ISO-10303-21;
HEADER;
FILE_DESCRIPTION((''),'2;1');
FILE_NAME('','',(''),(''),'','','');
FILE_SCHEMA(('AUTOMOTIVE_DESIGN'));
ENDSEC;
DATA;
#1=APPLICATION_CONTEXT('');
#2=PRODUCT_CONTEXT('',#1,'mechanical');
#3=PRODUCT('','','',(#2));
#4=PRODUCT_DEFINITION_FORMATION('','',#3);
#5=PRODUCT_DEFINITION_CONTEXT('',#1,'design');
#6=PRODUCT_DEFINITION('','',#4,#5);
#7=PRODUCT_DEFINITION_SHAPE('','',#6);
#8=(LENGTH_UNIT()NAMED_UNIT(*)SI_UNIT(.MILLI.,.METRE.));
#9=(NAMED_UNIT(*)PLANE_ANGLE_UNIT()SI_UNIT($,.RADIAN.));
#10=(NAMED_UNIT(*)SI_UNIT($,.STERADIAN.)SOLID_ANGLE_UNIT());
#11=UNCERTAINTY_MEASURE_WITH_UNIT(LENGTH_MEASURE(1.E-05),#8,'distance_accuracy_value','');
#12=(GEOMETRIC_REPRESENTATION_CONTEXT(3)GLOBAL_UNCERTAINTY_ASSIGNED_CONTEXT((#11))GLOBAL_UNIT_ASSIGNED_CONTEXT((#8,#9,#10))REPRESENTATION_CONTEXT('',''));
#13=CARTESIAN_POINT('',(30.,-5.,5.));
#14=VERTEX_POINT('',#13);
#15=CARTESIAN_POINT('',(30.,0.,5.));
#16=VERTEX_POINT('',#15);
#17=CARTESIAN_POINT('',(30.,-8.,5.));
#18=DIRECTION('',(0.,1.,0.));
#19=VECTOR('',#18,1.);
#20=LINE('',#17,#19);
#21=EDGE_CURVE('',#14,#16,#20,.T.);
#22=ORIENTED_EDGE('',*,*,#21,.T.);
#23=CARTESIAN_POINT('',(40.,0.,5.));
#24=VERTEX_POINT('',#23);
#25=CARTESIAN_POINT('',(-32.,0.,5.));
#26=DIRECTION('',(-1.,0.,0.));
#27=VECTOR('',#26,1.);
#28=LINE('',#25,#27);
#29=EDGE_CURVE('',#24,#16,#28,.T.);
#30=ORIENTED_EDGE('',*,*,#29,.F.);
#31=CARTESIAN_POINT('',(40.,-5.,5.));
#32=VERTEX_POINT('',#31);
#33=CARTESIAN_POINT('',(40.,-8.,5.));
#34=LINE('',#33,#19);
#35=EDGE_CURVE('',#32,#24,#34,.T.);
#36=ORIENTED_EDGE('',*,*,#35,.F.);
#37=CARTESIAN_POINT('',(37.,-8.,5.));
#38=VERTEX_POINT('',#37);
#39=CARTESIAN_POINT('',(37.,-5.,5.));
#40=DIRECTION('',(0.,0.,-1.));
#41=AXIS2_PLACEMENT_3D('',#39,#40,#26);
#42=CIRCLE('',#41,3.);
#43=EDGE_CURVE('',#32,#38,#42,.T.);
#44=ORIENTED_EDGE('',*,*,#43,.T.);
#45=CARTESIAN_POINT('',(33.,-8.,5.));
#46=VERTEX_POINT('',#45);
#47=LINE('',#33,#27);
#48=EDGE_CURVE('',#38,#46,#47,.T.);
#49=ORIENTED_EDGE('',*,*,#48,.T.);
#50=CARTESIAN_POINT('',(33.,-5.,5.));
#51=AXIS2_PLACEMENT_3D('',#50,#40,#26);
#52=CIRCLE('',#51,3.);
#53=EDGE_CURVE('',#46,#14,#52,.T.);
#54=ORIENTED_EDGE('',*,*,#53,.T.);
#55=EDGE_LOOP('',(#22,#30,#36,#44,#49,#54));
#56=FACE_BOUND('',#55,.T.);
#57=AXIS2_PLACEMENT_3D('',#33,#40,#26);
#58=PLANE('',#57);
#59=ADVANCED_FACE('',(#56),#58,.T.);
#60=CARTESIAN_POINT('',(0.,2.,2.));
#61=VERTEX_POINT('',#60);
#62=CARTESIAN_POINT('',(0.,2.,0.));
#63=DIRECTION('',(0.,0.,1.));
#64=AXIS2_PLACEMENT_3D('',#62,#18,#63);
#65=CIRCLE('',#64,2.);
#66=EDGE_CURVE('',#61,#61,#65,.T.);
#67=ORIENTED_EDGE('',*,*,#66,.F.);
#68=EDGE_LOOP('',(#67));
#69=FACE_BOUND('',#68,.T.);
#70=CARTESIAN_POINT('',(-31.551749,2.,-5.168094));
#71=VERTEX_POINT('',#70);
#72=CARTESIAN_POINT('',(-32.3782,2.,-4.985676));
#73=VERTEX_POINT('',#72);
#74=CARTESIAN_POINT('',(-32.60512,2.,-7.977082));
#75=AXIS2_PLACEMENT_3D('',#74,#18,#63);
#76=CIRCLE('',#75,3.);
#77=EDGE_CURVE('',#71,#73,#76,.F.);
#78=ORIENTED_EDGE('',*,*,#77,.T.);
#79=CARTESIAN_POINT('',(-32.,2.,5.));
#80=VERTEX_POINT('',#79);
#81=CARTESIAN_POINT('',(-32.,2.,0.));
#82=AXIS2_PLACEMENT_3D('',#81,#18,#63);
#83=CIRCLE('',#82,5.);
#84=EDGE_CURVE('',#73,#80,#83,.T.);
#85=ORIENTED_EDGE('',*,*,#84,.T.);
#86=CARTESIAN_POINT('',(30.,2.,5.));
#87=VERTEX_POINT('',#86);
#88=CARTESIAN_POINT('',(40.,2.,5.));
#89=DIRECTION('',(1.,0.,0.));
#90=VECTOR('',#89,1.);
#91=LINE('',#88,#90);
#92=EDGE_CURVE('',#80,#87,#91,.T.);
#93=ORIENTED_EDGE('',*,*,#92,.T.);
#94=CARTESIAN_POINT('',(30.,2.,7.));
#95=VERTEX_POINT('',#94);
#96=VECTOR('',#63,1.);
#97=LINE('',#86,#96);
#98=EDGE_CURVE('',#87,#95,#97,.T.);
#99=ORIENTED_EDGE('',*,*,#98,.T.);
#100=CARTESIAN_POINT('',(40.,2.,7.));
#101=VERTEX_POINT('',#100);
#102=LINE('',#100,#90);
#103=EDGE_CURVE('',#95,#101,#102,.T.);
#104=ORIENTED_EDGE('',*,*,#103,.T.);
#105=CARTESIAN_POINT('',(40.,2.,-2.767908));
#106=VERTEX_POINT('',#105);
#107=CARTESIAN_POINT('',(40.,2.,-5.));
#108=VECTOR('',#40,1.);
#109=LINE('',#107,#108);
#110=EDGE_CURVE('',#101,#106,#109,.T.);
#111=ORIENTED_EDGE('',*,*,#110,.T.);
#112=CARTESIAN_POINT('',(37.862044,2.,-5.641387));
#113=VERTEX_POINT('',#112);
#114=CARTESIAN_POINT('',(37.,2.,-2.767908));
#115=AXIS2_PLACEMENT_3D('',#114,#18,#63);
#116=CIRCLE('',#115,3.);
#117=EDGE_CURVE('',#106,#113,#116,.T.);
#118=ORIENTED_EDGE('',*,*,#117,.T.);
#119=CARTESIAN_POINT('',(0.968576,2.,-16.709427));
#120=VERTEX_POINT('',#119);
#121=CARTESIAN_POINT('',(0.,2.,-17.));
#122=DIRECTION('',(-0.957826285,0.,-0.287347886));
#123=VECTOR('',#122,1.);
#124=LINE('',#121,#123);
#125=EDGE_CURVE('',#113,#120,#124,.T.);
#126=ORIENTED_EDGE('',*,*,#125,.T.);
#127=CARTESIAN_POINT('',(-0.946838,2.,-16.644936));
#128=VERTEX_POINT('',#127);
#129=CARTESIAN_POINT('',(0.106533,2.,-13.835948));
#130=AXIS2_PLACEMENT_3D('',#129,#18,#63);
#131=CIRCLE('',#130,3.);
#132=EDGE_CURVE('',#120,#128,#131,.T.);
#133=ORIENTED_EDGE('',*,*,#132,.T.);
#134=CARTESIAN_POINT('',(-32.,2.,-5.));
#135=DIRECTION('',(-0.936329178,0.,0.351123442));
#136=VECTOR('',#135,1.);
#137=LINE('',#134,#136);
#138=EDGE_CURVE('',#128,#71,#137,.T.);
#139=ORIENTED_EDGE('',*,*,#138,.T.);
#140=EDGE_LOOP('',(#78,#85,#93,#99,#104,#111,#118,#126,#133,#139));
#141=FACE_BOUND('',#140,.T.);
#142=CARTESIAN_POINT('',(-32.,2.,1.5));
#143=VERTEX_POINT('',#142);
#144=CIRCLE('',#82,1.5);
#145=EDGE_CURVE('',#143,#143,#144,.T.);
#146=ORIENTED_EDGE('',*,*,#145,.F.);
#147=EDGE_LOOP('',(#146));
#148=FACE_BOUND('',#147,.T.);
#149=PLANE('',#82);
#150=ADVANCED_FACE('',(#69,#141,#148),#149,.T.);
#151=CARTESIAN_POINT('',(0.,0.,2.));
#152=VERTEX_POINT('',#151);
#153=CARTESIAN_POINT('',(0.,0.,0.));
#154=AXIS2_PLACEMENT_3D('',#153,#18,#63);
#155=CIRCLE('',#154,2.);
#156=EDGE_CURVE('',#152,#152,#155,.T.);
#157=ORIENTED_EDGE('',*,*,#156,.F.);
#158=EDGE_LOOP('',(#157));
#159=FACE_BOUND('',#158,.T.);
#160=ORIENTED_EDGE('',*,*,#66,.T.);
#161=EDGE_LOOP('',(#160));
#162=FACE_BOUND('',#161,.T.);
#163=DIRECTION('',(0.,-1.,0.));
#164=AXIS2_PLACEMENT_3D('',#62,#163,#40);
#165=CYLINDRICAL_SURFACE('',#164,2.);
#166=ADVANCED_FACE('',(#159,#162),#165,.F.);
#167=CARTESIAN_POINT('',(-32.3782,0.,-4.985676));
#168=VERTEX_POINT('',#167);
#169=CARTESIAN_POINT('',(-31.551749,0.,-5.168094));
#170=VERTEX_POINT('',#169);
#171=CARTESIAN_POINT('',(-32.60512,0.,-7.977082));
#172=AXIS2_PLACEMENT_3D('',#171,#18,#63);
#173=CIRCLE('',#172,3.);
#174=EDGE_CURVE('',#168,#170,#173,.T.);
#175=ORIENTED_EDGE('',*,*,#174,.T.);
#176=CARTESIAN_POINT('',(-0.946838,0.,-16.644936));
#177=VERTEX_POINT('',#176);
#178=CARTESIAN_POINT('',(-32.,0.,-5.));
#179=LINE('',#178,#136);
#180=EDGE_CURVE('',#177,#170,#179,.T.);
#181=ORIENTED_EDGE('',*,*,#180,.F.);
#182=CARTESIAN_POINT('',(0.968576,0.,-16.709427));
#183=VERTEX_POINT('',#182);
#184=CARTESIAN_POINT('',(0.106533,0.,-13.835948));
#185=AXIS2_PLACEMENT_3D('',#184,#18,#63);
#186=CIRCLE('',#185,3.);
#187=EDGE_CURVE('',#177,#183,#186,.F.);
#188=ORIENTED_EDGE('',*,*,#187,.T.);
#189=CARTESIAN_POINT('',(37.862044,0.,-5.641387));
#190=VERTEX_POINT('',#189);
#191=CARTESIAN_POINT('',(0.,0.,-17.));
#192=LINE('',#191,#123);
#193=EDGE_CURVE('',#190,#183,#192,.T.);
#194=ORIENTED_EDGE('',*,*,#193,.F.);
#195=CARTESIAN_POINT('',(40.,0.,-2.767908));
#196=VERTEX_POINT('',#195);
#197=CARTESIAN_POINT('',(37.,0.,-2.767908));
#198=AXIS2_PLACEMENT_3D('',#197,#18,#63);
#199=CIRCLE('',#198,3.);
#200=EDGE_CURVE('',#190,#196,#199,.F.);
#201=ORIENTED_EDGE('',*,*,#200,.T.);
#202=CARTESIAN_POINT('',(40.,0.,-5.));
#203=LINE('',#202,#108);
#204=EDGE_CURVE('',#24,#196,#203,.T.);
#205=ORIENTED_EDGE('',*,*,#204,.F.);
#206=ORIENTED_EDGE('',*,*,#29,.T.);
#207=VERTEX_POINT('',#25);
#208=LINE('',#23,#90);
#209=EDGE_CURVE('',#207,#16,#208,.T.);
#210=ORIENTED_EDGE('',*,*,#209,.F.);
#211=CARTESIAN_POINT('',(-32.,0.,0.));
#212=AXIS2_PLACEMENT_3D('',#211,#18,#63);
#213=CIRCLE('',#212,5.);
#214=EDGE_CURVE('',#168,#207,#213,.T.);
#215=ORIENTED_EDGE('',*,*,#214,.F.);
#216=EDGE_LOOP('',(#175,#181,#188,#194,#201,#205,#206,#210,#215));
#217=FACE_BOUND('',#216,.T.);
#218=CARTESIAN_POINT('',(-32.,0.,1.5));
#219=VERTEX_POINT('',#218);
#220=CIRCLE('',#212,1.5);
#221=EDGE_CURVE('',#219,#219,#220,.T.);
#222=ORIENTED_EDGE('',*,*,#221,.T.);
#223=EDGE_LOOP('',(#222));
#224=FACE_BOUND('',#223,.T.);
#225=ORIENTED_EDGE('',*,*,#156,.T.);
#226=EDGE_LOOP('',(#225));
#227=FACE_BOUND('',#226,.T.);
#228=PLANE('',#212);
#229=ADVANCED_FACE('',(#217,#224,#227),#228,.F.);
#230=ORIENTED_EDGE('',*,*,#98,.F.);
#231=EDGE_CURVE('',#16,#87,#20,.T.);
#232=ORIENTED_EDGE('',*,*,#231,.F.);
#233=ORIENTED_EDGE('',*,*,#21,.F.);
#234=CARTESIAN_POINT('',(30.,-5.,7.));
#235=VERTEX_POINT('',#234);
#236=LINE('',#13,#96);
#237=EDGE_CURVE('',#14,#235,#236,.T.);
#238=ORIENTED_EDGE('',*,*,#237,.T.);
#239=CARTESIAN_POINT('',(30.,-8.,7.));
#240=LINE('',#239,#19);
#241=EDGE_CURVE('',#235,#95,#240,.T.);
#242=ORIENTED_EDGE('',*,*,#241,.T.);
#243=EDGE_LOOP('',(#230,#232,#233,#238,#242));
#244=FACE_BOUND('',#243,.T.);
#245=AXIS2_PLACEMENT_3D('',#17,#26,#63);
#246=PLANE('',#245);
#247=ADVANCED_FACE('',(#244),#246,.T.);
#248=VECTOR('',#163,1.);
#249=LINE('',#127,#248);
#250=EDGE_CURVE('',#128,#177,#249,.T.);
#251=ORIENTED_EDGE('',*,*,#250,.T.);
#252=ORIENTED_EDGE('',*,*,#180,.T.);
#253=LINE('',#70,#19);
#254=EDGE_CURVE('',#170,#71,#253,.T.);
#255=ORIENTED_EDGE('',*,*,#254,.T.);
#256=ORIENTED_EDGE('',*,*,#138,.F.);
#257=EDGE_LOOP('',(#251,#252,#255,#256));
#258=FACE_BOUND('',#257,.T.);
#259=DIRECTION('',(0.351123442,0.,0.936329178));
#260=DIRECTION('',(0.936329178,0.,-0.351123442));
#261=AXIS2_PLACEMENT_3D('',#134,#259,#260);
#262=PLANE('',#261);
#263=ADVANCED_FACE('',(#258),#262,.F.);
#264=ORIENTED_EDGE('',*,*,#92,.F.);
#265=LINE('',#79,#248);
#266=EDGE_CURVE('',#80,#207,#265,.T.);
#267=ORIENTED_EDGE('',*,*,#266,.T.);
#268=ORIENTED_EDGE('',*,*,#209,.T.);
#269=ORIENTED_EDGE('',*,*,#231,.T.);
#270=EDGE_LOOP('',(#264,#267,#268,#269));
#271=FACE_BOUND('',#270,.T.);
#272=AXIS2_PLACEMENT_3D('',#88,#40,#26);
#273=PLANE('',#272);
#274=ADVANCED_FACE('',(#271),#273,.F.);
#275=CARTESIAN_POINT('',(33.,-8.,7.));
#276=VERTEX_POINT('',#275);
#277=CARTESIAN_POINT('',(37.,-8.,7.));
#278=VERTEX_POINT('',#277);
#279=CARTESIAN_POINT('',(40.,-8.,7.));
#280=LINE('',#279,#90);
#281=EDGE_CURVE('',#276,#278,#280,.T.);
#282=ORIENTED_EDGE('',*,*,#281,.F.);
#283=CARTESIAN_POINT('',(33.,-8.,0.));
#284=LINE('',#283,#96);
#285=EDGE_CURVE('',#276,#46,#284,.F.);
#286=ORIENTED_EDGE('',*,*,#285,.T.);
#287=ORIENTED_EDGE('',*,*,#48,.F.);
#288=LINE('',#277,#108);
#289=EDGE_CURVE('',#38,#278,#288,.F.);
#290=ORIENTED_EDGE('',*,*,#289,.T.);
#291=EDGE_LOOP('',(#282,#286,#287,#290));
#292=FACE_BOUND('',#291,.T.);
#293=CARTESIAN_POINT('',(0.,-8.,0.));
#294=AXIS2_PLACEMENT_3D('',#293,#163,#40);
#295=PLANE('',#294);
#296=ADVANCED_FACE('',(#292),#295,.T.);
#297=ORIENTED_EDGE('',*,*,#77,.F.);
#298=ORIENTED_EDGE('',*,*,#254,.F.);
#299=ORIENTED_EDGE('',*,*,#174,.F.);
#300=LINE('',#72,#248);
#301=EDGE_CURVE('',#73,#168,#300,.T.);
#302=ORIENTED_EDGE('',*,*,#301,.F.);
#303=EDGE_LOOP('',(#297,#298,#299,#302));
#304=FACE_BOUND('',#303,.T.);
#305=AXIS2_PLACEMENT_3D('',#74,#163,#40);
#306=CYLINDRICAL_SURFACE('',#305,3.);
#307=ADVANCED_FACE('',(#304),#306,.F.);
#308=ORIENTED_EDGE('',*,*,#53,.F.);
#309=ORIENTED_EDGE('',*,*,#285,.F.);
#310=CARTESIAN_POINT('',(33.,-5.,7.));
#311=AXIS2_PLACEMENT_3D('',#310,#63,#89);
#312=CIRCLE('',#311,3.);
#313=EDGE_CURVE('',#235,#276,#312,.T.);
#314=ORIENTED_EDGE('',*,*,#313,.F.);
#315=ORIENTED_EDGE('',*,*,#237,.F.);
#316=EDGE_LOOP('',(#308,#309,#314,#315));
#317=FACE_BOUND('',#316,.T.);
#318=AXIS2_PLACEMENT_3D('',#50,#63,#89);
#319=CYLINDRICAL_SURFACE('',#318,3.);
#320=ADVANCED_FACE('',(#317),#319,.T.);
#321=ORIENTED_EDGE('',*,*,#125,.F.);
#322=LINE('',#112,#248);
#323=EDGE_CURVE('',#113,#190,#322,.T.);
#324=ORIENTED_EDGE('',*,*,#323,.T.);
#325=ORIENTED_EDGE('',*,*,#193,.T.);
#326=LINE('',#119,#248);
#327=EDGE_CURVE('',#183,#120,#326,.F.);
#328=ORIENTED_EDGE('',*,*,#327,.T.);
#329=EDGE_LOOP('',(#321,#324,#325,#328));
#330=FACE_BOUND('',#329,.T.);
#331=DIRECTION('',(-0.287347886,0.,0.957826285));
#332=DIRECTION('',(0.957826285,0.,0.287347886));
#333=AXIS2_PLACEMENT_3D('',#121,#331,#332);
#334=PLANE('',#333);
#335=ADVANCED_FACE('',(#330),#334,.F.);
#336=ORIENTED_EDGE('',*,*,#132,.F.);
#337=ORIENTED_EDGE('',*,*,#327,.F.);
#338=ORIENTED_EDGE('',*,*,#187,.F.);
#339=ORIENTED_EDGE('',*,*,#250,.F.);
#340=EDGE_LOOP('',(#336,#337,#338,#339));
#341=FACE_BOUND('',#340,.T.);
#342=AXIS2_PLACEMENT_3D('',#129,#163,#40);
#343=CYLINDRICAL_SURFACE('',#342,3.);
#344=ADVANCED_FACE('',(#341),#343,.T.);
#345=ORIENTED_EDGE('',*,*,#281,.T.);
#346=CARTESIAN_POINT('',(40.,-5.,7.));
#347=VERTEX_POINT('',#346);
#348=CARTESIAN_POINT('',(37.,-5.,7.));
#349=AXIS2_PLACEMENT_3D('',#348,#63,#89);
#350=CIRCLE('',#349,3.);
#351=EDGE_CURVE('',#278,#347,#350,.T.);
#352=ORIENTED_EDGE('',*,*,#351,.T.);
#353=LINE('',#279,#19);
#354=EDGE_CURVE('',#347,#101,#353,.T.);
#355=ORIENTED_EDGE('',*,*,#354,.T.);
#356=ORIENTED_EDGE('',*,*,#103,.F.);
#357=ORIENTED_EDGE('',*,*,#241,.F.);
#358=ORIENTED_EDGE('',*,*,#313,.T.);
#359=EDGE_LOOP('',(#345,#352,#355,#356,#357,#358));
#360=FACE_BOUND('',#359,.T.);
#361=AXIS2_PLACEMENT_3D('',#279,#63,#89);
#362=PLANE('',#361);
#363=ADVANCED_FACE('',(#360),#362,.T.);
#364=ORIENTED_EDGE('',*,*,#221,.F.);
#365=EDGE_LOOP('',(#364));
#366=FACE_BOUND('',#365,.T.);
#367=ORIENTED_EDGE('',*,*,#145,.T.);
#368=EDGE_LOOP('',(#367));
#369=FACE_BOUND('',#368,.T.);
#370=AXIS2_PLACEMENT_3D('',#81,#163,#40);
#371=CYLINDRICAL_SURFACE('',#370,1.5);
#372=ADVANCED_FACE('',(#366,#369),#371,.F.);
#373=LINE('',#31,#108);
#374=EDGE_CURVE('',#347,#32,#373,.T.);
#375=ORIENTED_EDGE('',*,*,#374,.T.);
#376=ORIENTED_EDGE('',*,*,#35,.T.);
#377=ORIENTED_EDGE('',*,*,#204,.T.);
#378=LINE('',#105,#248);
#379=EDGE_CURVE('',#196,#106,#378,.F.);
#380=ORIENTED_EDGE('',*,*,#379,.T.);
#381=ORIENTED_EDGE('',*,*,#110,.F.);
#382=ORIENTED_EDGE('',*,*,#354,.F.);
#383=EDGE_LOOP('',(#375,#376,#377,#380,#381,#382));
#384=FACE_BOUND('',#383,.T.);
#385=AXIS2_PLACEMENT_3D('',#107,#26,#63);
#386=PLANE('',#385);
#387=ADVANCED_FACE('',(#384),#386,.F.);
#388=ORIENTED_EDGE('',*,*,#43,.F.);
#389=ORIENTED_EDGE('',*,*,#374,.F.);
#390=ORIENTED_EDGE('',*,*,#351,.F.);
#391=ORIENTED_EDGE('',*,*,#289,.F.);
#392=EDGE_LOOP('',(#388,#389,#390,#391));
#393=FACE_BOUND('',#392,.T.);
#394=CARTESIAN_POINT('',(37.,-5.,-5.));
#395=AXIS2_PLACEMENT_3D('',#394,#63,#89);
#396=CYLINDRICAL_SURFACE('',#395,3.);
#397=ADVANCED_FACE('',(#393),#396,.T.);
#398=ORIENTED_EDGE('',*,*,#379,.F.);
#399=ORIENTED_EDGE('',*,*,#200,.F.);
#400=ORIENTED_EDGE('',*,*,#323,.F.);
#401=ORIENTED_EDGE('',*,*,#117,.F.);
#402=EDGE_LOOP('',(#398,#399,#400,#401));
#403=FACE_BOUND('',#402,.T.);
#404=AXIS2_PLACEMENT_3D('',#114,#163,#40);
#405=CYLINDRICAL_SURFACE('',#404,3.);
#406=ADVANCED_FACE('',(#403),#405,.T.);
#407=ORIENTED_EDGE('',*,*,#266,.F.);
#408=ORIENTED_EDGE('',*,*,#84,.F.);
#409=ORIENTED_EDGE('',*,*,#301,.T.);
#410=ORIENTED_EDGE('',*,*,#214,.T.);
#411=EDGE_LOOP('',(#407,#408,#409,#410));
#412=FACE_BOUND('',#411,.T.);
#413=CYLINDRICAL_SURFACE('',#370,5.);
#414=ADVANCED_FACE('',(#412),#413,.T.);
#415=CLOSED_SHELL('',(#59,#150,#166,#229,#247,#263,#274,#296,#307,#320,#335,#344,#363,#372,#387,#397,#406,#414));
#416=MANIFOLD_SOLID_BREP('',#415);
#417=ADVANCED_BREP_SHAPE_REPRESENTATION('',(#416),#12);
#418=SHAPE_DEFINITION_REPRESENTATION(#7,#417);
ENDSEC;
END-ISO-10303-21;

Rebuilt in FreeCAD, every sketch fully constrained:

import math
import FreeCAD as App
import Part
import Sketcher
from FreeCAD import Vector


def edges_at(feature, points):
    """Names of the edges that pass closest to the given points."""
    edges = feature.Shape.Edges
    near = lambda p: min(range(len(edges)), key=lambda i: edges[i].distToShape(Part.Vertex(*p))[0])
    return sorted({f"Edge{near(p) + 1}" for p in points})


def add_polygon(sketch, points):
    """Adds a closed chain of lines whose ends are joined by coincident constraints."""
    first, n = sketch.GeometryCount, len(points)
    for a, b in zip(points, points[1:] + points[:1]):
        sketch.addGeometry(Part.LineSegment(App.Vector(*a, 0), App.Vector(*b, 0)), False)
    for i in range(n):
        sketch.addConstraint(Sketcher.Constraint("Coincident", first + i, 2, first + (i + 1) % n, 1))

doc = App.newDocument("Part")
body = doc.addObject("PartDesign::Body", "Body")

sketch1 = body.newObject("Sketcher::SketchObject", "Sketch")
sketch1.AttachmentSupport = (doc.getObject("XZ_Plane"), [""])
sketch1.MapMode = "FlatFace"
sketch1.addGeometry([
    Part.LineSegment(Vector(0, -17, 0), Vector(-32, -5, 0)),
    Part.ArcOfCircle(Part.Circle(Vector(-32, 0, 0), Vector(0, 0, 1), 5), math.radians(90), math.radians(270)),
    Part.LineSegment(Vector(-32, 5, 0), Vector(40, 5, 0)),
    Part.LineSegment(Vector(40, 5, 0), Vector(40, -5, 0)),
    Part.LineSegment(Vector(40, -5, 0), Vector(0, -17, 0)),
    Part.Circle(Vector(0, 0, 0), Vector(0, 0, 1), 2),
    Part.Circle(Vector(-32, 0, 0), Vector(0, 0, 1), 1.5),
], False)
sketch1.addConstraint([
    Sketcher.Constraint("Coincident", 0, 2, 1, 2),
    Sketcher.Constraint("Tangent", 1, 1, 2, 1),
    Sketcher.Constraint("Coincident", 2, 2, 3, 1),
    Sketcher.Constraint("Coincident", 3, 2, 4, 1),
    Sketcher.Constraint("Coincident", 4, 2, 0, 1),
    Sketcher.Constraint("Horizontal", 2),
    Sketcher.Constraint("Vertical", 3),
    Sketcher.Constraint("Coincident", 5, 3, -1, 1),
    Sketcher.Constraint("Coincident", 6, 3, 1, 3),
    Sketcher.Constraint("Symmetric", 0, 2, 1, 1, -1),
    Sketcher.Constraint("PointOnObject", 4, 2, -2),
    Sketcher.Constraint("Horizontal", 0, 2, 3, 2),
    Sketcher.Constraint("Diameter", 5, 4.0),
    Sketcher.Constraint("Diameter", 6, 3.0),
    Sketcher.Constraint("Radius", 1, 5.0),
    Sketcher.Constraint("DistanceX", 2, 1, 2, 2, 72.0),
    Sketcher.Constraint("DistanceX", 1, 3, -1, 1, 32.0),
    Sketcher.Constraint("DistanceY", 4, 2, -1, 1, 17.0),
])
pad1 = body.newObject("PartDesign::Pad", "Pad")
pad1.Profile = sketch1
pad1.Length = 2
pad1.Reversed = True

sketch2 = body.newObject("Sketcher::SketchObject", "Sketch001")
sketch2.AttachmentSupport = (doc.getObject("XZ_Plane"), [""])
sketch2.MapMode = "FlatFace"
sketch2.AttachmentOffset = App.Placement(Vector(0, 0, -2), App.Rotation())
add_polygon(sketch2, [(30, 5), (30, 7), (40, 7), (40, 5)])
sketch2.addConstraint([
    Sketcher.Constraint("Vertical", 0),
    Sketcher.Constraint("Horizontal", 1),
    Sketcher.Constraint("Vertical", 2),
    Sketcher.Constraint("Horizontal", 3),
    Sketcher.Constraint("DistanceX", 1, 1, 1, 2, 10.0),
    Sketcher.Constraint("DistanceY", 0, 1, 0, 2, 2.0),
    Sketcher.Constraint("DistanceX", -1, 1, 0, 2, 30.0),
    Sketcher.Constraint("DistanceY", -1, 1, 0, 2, 7.0),
])
pad2 = body.newObject("PartDesign::Pad", "Pad001")
pad2.Profile = sketch2
pad2.Length = 10
doc.recompute()

fillet = body.newObject("PartDesign::Fillet", "Fillet")
fillet.Base = (pad2, edges_at(pad2, [(-32, 1, -5), (0, 1, -17), (40, 1, -5)]))
fillet.Radius = 3
doc.recompute()

fillet2 = body.newObject("PartDesign::Fillet", "Fillet001")
fillet2.Base = (fillet, edges_at(fillet, [(40, -8, 6), (30, -8, 6)]))
fillet2.Radius = 3

doc.recompute()
